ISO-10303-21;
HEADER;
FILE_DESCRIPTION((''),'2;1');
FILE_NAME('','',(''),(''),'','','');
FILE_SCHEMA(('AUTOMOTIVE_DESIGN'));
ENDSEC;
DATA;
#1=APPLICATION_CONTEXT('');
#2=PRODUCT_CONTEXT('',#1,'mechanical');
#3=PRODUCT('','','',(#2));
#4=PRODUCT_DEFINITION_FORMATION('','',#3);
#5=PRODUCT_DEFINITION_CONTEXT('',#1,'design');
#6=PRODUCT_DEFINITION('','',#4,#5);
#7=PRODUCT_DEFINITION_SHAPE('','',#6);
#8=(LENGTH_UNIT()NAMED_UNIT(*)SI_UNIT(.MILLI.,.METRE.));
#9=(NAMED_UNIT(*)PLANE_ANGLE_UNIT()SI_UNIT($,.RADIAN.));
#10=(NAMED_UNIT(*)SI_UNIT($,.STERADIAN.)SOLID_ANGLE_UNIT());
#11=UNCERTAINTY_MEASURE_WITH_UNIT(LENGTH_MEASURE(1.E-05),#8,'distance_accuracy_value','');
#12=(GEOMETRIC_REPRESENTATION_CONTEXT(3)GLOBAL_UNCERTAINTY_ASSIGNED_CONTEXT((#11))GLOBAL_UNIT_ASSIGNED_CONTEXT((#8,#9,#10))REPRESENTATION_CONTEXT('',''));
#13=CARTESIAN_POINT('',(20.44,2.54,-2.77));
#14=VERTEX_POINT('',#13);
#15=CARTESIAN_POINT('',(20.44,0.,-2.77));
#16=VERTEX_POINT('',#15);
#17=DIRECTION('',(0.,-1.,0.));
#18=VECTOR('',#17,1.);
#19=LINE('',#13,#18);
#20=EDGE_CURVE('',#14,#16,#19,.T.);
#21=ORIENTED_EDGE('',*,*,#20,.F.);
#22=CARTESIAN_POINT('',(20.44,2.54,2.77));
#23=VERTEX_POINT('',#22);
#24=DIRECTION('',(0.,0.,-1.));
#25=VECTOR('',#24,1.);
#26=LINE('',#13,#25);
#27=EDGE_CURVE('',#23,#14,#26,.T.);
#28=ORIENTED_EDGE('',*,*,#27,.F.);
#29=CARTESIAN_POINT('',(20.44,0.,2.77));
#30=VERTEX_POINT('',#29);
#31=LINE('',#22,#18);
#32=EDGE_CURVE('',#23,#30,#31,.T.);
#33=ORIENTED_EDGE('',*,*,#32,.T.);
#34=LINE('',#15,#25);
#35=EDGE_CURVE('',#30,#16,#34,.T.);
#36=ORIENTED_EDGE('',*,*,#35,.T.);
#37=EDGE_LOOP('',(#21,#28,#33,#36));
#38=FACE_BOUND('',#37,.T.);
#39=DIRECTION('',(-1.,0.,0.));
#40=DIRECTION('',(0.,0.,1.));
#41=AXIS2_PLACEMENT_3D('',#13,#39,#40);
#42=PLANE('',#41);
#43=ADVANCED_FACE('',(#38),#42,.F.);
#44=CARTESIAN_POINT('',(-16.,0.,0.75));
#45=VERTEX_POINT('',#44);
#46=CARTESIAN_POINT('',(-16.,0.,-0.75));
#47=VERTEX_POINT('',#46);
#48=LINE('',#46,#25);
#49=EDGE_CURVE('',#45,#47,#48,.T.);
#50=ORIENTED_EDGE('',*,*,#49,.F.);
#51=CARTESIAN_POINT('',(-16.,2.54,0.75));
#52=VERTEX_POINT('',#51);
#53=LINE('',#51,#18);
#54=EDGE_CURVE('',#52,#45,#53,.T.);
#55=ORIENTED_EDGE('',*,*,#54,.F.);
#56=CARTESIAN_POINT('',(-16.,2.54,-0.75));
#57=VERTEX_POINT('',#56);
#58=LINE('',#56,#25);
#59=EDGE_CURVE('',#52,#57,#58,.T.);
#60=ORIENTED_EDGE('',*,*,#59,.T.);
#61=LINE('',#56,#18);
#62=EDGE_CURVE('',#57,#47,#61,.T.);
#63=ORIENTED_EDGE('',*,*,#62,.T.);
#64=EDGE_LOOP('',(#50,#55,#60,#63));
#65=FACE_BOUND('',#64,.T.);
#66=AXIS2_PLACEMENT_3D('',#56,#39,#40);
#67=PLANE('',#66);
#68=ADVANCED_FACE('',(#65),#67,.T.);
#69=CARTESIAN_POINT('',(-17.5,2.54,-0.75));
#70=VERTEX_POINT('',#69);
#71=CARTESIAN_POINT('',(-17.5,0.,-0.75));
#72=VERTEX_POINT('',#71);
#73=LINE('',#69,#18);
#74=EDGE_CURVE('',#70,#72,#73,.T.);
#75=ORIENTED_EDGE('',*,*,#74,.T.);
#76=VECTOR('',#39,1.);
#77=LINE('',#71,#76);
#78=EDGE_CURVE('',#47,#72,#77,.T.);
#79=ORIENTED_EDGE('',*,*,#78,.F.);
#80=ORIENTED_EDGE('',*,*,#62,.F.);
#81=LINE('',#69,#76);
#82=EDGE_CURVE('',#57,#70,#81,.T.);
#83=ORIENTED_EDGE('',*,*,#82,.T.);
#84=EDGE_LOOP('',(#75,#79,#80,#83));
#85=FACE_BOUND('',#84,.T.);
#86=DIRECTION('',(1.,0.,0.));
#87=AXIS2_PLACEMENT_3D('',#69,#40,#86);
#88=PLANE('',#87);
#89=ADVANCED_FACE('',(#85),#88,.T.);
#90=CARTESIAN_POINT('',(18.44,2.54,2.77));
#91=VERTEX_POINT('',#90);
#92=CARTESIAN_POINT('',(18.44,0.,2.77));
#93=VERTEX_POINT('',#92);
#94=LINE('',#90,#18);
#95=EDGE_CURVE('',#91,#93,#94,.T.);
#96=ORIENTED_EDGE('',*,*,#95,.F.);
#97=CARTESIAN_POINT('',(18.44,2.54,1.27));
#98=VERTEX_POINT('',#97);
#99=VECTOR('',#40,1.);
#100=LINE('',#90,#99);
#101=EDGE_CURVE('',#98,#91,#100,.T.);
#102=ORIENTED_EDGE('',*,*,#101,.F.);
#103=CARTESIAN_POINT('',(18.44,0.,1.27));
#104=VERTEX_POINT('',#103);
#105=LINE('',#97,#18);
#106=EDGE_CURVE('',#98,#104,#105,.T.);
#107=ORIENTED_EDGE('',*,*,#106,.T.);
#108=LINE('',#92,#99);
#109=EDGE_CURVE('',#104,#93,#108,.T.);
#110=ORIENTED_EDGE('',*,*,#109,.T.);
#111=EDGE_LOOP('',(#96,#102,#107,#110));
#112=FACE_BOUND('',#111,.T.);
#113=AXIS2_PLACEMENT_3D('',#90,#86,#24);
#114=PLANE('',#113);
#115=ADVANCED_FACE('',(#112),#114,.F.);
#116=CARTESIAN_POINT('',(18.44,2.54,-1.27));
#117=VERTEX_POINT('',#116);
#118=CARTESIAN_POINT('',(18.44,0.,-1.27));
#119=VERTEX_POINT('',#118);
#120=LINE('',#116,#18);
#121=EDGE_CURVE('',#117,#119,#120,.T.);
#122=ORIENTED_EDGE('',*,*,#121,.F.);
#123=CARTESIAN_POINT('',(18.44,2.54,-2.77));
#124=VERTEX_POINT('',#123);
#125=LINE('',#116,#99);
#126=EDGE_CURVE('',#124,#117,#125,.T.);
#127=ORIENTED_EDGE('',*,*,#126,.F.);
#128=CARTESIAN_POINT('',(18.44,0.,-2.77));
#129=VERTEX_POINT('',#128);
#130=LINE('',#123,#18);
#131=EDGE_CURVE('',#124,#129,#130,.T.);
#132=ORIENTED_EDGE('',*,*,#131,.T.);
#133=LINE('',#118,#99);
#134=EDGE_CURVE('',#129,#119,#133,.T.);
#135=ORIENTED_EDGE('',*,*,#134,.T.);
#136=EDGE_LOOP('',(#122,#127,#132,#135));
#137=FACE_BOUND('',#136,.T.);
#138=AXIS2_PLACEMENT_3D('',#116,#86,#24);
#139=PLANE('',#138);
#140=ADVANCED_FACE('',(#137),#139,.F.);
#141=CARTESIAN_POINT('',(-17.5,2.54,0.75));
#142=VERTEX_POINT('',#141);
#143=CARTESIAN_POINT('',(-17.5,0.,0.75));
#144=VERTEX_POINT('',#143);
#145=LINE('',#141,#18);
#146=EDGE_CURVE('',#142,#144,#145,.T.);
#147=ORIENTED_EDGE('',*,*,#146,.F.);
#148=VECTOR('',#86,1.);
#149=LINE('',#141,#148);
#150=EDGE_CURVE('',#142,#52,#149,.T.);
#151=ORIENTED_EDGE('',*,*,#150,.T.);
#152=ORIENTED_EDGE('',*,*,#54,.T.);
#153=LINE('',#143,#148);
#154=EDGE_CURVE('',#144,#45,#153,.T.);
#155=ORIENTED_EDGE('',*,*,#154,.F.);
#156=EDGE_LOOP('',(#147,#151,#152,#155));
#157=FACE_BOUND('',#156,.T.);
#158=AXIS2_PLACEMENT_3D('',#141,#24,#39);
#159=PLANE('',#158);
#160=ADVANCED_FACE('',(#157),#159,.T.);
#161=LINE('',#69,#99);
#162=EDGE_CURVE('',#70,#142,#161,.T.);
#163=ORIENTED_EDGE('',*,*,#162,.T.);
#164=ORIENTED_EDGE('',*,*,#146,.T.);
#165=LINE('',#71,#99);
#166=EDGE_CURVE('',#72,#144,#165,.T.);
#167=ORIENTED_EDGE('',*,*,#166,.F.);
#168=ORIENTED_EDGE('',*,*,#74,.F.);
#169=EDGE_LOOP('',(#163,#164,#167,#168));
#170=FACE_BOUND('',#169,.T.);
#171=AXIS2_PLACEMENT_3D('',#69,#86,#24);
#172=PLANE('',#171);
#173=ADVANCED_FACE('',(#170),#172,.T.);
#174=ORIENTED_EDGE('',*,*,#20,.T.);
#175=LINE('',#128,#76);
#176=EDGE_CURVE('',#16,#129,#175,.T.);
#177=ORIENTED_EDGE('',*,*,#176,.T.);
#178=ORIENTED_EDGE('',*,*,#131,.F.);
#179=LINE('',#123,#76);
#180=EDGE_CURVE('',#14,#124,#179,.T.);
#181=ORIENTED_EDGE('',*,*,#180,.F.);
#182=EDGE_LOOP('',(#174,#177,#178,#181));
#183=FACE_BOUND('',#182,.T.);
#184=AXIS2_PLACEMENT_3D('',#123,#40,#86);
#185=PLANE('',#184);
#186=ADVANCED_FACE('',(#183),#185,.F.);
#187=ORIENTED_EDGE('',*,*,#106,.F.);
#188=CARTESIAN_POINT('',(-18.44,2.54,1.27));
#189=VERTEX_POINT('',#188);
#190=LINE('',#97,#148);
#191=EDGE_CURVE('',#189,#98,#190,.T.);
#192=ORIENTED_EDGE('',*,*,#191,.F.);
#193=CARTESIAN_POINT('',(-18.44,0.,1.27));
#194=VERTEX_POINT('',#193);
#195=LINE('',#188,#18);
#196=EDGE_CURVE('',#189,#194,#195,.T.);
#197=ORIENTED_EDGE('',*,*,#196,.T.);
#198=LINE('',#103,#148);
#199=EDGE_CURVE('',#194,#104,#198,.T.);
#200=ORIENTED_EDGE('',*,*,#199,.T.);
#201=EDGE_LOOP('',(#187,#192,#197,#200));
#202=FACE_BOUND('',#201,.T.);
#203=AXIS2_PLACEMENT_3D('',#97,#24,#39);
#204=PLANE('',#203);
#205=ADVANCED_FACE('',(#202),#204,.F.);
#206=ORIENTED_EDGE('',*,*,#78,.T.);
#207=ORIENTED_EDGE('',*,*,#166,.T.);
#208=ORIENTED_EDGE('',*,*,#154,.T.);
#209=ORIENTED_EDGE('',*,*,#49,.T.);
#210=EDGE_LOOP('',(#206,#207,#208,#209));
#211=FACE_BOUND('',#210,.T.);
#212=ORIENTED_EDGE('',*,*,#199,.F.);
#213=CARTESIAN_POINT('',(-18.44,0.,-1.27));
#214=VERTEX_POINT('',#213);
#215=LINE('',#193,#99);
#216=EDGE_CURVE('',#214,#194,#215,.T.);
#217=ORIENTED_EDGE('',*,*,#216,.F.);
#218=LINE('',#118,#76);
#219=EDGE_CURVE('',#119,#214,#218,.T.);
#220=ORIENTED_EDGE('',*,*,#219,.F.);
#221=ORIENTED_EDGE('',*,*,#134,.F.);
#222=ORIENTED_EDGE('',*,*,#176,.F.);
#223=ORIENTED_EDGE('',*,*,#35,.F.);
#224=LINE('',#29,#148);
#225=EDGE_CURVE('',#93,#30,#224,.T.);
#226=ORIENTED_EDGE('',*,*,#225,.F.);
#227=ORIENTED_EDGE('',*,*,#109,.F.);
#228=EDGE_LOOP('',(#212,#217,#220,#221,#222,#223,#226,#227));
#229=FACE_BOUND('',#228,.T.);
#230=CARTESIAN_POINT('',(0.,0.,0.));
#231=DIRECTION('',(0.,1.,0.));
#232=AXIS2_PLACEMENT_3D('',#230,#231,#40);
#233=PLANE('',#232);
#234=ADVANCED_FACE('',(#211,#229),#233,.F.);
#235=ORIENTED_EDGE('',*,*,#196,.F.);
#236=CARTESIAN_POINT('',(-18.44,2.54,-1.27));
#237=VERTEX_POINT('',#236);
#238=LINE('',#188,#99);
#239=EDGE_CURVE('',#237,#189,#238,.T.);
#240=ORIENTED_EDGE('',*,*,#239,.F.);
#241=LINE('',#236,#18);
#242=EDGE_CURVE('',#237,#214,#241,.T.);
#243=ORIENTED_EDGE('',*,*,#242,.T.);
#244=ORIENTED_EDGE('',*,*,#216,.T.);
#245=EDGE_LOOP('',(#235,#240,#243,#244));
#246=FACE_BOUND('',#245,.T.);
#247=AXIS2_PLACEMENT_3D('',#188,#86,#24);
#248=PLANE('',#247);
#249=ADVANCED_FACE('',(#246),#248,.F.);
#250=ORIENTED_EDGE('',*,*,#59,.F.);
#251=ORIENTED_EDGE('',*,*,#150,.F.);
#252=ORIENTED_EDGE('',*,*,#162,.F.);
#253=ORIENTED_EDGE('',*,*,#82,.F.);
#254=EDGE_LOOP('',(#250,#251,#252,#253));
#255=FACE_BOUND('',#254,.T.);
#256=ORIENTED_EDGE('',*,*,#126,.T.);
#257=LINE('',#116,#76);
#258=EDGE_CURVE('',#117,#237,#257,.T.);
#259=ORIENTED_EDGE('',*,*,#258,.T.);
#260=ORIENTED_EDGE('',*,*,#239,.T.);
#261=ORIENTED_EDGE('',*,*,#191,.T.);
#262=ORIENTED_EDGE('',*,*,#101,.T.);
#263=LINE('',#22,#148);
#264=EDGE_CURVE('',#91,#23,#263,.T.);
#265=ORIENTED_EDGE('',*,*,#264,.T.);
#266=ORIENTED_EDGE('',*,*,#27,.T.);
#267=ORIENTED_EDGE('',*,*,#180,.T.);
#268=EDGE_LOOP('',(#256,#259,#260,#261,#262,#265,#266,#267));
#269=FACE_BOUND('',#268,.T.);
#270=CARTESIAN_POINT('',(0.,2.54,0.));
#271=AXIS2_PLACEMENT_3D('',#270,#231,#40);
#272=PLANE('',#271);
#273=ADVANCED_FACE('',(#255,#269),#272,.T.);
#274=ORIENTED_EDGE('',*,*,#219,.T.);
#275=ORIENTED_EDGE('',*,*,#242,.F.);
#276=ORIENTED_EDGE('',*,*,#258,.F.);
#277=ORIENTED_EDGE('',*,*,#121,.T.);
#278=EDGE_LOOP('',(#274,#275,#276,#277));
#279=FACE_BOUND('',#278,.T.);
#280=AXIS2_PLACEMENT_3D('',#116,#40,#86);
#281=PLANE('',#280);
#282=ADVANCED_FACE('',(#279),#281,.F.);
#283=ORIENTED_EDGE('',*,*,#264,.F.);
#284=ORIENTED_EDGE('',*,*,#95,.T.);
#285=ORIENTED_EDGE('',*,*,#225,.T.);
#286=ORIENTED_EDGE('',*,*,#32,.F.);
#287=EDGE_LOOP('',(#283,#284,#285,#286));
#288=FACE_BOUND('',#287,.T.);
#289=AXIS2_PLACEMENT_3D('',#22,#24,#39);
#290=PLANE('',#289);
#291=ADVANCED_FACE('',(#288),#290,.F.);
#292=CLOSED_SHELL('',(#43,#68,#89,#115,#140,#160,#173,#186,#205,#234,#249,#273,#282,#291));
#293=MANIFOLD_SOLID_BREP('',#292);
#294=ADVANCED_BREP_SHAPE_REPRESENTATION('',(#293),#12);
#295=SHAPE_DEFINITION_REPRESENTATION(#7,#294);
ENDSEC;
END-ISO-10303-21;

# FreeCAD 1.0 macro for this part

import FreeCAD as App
import Part
import Sketcher

doc = App.newDocument("Part")
body = doc.addObject("PartDesign::Body", "Body")

sketch1 = body.newObject("Sketcher::SketchObject", "Sketch")
sketch1.AttachmentSupport = (doc.getObject("XZ_Plane"), [""])
sketch1.MapMode = "FlatFace"
sketch1.addGeometry(Part.LineSegment(App.Vector(18.4, -2.8, 0), App.Vector(18.4, -1.3, 0)), False)
sketch1.addGeometry(Part.LineSegment(App.Vector(18.4, -1.3, 0), App.Vector(-18.4, -1.3, 0)), False)
sketch1.addGeometry(Part.LineSegment(App.Vector(-18.4, -1.3, 0), App.Vector(-18.4, 1.3, 0)), False)
sketch1.addGeometry(Part.LineSegment(App.Vector(-18.4, 1.3, 0), App.Vector(18.4, 1.3, 0)), False)
sketch1.addGeometry(Part.LineSegment(App.Vector(18.4, 1.3, 0), App.Vector(18.4, 2.8, 0)), False)
sketch1.addGeometry(Part.LineSegment(App.Vector(18.4, 2.8, 0), App.Vector(20.4, 2.8, 0)), False)
sketch1.addGeometry(Part.LineSegment(App.Vector(20.4, 2.8, 0), App.Vector(20.4, -2.8, 0)), False)
sketch1.addGeometry(Part.LineSegment(App.Vector(20.4, -2.8, 0), App.Vector(18.4, -2.8, 0)), False)
sketch1.addGeometry(Part.LineSegment(App.Vector(-17.5, 0.8, 0), App.Vector(-17.5, -0.8, 0)), False)
sketch1.addGeometry(Part.LineSegment(App.Vector(-17.5, -0.8, 0), App.Vector(-16, -0.8, 0)), False)
sketch1.addGeometry(Part.LineSegment(App.Vector(-16, -0.8, 0), App.Vector(-16, 0.8, 0)), False)
sketch1.addGeometry(Part.LineSegment(App.Vector(-16, 0.8, 0), App.Vector(-17.5, 0.8, 0)), False)
sketch1.addConstraint(Sketcher.Constraint("Coincident", 0, 2, 1, 1))
sketch1.addConstraint(Sketcher.Constraint("Coincident", 1, 2, 2, 1))
sketch1.addConstraint(Sketcher.Constraint("Coincident", 2, 2, 3, 1))
sketch1.addConstraint(Sketcher.Constraint("Coincident", 3, 2, 4, 1))
sketch1.addConstraint(Sketcher.Constraint("Coincident", 4, 2, 5, 1))
sketch1.addConstraint(Sketcher.Constraint("Coincident", 5, 2, 6, 1))
sketch1.addConstraint(Sketcher.Constraint("Coincident", 6, 2, 7, 1))
sketch1.addConstraint(Sketcher.Constraint("Coincident", 7, 2, 0, 1))
sketch1.addConstraint(Sketcher.Constraint("Coincident", 8, 2, 9, 1))
sketch1.addConstraint(Sketcher.Constraint("Coincident", 9, 2, 10, 1))
sketch1.addConstraint(Sketcher.Constraint("Coincident", 10, 2, 11, 1))
sketch1.addConstraint(Sketcher.Constraint("Coincident", 11, 2, 8, 1))
sketch1.addConstraint(Sketcher.Constraint("Vertical", 0))
sketch1.addConstraint(Sketcher.Constraint("Horizontal", 1))
sketch1.addConstraint(Sketcher.Constraint("Vertical", 2))
sketch1.addConstraint(Sketcher.Constraint("Horizontal", 3))
sketch1.addConstraint(Sketcher.Constraint("Vertical", 4))
sketch1.addConstraint(Sketcher.Constraint("Horizontal", 5))
sketch1.addConstraint(Sketcher.Constraint("Vertical", 6))
sketch1.addConstraint(Sketcher.Constraint("Horizontal", 7))
sketch1.addConstraint(Sketcher.Constraint("Vertical", 8))
sketch1.addConstraint(Sketcher.Constraint("Horizontal", 9))
sketch1.addConstraint(Sketcher.Constraint("Vertical", 10))
sketch1.addConstraint(Sketcher.Constraint("Horizontal", 11))
sketch1.addConstraint(Sketcher.Constraint("Symmetric", 0, 2, 2, 2, -1, 1))
sketch1.addConstraint(Sketcher.Constraint("Symmetric", 4, 2, 7, 2, -1))
sketch1.addConstraint(Sketcher.Constraint("Equal", 11, 0))
sketch1.addConstraint(Sketcher.Constraint("Equal", 4, 8))
sketch1.addConstraint(Sketcher.Constraint("DistanceX", 5, 1, 5, 2, 2.0))
sketch1.addConstraint(Sketcher.Constraint("DistanceX", 9, 1, 9, 2, 1.5))
sketch1.addConstraint(Sketcher.Constraint("DistanceX", 9, 2, -1, 1, 16.0))
sketch1.addConstraint(Sketcher.Constraint("DistanceX", 1, 2, 1, 1, 36.88))
sketch1.addConstraint(Sketcher.Constraint("DistanceY", 2, 1, 2, 2, 2.54))
sketch1.addConstraint(Sketcher.Constraint("DistanceY", 8, 2, -1, 1, 0.75))
pad1 = body.newObject("PartDesign::Pad", "Pad")
pad1.Profile = sketch1
pad1.Length = 2.54
pad1.Reversed = True

doc.recompute()
